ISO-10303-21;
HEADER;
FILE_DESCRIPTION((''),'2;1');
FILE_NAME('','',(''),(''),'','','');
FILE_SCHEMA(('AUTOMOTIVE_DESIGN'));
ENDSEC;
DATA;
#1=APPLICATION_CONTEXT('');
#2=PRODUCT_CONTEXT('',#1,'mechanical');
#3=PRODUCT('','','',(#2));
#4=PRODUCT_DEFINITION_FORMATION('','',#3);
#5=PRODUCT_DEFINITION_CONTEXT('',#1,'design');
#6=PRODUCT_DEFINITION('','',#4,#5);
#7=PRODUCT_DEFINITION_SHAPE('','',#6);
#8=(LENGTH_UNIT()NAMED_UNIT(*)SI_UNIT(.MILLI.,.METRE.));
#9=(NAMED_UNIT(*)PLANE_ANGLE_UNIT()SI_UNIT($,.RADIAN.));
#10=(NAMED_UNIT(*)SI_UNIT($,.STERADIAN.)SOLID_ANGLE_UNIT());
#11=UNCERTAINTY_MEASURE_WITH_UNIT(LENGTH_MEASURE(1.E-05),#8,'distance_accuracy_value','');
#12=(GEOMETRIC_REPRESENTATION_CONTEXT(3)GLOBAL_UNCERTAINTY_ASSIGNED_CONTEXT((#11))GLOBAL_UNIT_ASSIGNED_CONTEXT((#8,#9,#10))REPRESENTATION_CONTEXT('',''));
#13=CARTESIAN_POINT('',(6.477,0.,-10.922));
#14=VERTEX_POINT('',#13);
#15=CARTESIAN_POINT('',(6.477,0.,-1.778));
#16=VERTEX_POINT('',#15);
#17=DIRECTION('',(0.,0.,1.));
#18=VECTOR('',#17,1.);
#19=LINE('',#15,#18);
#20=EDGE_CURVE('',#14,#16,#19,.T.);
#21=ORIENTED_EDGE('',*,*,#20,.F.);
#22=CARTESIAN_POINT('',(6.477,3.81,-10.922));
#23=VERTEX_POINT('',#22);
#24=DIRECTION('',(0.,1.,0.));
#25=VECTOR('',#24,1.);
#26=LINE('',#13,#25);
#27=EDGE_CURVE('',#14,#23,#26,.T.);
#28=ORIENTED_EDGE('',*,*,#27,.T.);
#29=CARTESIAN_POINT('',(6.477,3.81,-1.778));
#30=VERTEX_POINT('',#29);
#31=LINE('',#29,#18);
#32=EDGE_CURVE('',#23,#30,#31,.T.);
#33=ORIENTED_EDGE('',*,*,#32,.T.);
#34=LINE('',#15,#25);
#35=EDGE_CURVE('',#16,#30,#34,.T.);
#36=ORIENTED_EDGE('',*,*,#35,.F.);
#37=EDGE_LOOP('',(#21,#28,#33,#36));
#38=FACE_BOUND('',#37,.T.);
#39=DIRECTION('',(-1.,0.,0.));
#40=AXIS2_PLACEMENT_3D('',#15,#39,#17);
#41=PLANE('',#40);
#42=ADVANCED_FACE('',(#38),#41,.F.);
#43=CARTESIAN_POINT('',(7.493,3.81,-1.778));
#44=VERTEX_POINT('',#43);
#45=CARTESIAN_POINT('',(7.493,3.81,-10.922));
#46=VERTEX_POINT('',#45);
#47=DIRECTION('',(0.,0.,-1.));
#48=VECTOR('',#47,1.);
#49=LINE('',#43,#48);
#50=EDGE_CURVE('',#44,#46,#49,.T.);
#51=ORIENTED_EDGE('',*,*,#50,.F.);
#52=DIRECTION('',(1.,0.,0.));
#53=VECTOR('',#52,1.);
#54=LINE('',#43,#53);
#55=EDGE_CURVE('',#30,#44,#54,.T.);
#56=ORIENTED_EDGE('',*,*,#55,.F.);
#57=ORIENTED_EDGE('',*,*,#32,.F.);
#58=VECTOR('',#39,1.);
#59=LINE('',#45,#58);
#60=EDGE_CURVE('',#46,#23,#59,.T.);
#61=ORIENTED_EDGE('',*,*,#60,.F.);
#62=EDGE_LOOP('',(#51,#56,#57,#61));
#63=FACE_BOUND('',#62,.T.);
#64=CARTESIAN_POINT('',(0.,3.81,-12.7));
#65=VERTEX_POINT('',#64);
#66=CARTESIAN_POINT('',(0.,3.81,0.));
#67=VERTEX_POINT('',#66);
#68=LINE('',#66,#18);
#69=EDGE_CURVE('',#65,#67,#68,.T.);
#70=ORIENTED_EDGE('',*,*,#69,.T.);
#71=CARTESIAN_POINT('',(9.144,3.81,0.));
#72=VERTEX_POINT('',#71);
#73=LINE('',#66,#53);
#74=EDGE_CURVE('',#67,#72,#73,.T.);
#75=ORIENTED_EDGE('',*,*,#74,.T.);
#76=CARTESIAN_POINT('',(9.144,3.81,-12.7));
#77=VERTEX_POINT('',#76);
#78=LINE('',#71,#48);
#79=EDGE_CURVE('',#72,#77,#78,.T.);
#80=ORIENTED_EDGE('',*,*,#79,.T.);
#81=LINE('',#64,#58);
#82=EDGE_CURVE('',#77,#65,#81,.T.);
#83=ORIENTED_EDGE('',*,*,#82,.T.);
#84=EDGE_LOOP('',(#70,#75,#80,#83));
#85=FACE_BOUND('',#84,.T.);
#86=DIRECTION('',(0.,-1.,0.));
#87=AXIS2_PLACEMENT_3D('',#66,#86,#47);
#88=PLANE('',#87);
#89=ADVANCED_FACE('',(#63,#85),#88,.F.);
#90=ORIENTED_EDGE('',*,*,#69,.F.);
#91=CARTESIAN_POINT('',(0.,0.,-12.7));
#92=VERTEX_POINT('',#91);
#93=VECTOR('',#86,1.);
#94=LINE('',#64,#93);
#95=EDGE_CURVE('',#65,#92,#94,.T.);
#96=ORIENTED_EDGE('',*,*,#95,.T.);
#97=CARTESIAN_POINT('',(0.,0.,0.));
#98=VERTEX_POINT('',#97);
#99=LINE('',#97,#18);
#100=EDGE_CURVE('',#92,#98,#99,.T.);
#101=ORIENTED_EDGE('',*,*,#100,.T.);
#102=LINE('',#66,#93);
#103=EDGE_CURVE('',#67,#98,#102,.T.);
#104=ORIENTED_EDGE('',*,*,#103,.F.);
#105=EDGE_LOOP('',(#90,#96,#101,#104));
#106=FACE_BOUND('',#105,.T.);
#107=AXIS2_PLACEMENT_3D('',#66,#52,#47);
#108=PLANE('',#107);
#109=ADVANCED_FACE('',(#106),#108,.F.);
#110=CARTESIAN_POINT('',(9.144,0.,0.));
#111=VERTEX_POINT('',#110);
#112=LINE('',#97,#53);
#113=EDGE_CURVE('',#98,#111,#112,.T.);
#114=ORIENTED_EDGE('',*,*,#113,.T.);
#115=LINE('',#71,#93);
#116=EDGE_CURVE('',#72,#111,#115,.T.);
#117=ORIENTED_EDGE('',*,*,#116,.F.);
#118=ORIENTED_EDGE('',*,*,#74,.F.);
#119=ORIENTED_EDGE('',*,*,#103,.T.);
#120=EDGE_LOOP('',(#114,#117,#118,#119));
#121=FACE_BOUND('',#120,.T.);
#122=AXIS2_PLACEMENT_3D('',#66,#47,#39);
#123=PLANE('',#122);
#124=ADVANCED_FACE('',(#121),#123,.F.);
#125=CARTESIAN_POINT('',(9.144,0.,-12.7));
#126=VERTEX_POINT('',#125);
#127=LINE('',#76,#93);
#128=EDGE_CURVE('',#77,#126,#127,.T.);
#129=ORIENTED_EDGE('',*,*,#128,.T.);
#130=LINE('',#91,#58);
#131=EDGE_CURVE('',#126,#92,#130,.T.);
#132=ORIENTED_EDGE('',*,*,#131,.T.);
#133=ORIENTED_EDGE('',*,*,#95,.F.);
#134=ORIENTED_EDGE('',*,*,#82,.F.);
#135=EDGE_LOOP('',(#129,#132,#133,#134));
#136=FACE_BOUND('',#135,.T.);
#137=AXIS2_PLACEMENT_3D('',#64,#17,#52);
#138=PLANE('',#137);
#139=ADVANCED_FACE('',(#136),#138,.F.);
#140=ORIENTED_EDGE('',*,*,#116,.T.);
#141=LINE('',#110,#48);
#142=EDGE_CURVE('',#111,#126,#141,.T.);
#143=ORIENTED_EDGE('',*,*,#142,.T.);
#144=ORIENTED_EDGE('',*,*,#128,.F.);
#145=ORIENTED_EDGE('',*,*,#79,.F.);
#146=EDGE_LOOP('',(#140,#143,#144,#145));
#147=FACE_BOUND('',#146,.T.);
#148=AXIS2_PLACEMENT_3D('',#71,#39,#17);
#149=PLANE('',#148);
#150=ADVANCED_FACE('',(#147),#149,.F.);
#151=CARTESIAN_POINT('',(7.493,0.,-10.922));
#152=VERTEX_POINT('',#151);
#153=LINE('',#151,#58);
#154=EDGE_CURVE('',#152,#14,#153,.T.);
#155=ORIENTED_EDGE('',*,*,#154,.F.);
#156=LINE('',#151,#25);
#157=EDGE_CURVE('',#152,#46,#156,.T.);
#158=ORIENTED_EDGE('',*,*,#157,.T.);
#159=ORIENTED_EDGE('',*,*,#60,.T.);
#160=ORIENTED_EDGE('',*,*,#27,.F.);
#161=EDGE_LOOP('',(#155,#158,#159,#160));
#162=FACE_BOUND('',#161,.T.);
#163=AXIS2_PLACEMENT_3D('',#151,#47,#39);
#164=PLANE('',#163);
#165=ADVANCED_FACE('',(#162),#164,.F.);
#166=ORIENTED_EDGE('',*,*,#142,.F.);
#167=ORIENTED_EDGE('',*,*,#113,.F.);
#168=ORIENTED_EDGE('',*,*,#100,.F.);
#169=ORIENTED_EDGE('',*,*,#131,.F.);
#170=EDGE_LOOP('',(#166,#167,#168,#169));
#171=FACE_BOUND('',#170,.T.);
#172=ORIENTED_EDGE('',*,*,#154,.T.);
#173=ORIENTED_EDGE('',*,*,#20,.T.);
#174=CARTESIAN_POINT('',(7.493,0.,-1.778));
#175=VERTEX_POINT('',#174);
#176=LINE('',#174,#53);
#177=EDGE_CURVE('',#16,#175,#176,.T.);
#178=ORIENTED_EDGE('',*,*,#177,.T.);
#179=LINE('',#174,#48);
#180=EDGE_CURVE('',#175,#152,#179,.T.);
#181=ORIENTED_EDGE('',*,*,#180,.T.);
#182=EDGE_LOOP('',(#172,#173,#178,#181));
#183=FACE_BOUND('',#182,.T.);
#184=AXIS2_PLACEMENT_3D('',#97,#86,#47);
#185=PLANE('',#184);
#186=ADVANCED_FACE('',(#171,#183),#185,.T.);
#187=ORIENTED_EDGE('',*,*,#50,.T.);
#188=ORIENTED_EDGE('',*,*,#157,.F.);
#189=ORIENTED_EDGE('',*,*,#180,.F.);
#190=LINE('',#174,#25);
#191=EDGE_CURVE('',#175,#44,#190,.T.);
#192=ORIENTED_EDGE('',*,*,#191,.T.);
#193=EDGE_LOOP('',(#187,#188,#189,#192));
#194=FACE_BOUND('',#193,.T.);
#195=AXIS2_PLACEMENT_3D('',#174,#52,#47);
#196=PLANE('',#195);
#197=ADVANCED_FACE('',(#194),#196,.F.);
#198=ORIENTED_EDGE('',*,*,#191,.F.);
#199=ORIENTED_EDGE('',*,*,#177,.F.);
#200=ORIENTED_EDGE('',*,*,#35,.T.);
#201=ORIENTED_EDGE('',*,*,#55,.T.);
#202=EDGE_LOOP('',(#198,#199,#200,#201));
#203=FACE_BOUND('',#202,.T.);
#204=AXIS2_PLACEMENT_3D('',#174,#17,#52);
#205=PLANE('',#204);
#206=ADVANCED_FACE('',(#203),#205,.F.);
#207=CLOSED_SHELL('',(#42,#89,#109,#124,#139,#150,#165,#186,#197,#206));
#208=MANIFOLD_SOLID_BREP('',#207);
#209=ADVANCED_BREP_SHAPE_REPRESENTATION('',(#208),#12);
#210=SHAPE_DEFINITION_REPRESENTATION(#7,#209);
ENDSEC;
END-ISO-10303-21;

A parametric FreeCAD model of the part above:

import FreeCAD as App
import Part
import Sketcher
from FreeCAD import Vector
Q = App.Units.Quantity

doc = App.newDocument("Part")
params = doc.addObject("Spreadsheet::Sheet", "Params")
for row, (alias, value) in enumerate([
    ("sketch1_height", "0.5 in"),
    ("sketch1_width", "0.36 in"),
    ("pad1_length", "0.15 in"),
    ("sketch2_width", "0.04 in"),
    ("sketch2_height", "0.36 in"),
], start=1):
    params.set(f"A{row}", alias)
    params.set(f"B{row}", "=" + value)
    params.setAlias(f"B{row}", alias)

body = doc.addObject("PartDesign::Body", "Body")

sketch1 = doc.addObject("Sketcher::SketchObject", "Sketch")
body.addObject(sketch1)
sketch1.AttachmentSupport = (doc.XZ_Plane, [""])
sketch1.MapMode = "FlatFace"
sketch1.addGeometry([
    Part.LineSegment(Vector(0, -13, 0), Vector(0, 0, 0)),
    Part.LineSegment(Vector(0, 0, 0), Vector(9, 0, 0)),
    Part.LineSegment(Vector(9, 0, 0), Vector(9, -13, 0)),
    Part.LineSegment(Vector(9, -13, 0), Vector(0, -13, 0)),
], False)
sketch1.addConstraint([
    Sketcher.Constraint("Coincident", 0, 2, 1, 1),
    Sketcher.Constraint("Coincident", 1, 2, 2, 1),
    Sketcher.Constraint("Coincident", 2, 2, 3, 1),
    Sketcher.Constraint("Coincident", 3, 2, 0, 1),
    Sketcher.Constraint("Vertical", 0),
    Sketcher.Constraint("Horizontal", 1),
    Sketcher.Constraint("Vertical", 2),
    Sketcher.Constraint("Horizontal", 3),
    Sketcher.Constraint("Coincident", 0, 2, -1, 1),
    Sketcher.Constraint("DistanceY", 0, 1, 0, 2, Q("0.5 in")),
    Sketcher.Constraint("DistanceX", 1, 1, 1, 2, Q("0.36 in")),
])
sketch1.setExpression("Constraints[9]", "Params.sketch1_height")
sketch1.setExpression("Constraints[10]", "Params.sketch1_width")
pad1 = doc.addObject("PartDesign::Pad", "Pad")
body.addObject(pad1)
pad1.Profile = sketch1
pad1.setExpression("Length", "Params.pad1_length")
pad1.Reversed = True

sketch2 = doc.addObject("Sketcher::SketchObject", "Sketch001")
body.addObject(sketch2)
sketch2.AttachmentSupport = (doc.XZ_Plane, [""])
sketch2.MapMode = "FlatFace"
sketch2.AttachmentOffset = App.Placement(Vector(0, 0, -0.15 * 25.4), App.Rotation())
sketch2.addGeometry([
    Part.LineSegment(Vector(6.5, -10.9, 0), Vector(6.5, -1.8, 0)),
    Part.LineSegment(Vector(6.5, -1.8, 0), Vector(7.5, -1.8, 0)),
    Part.LineSegment(Vector(7.5, -1.8, 0), Vector(7.5, -10.9, 0)),
    Part.LineSegment(Vector(7.5, -10.9, 0), Vector(6.5, -10.9, 0)),
], False)
sketch2.addConstraint([
    Sketcher.Constraint("Coincident", 0, 2, 1, 1),
    Sketcher.Constraint("Coincident", 1, 2, 2, 1),
    Sketcher.Constraint("Coincident", 2, 2, 3, 1),
    Sketcher.Constraint("Coincident", 3, 2, 0, 1),
    Sketcher.Constraint("Vertical", 0),
    Sketcher.Constraint("Horizontal", 1),
    Sketcher.Constraint("Vertical", 2),
    Sketcher.Constraint("Horizontal", 3),
    Sketcher.Constraint("DistanceX", 1, 1, 1, 2, Q("0.04 in")),
    Sketcher.Constraint("DistanceY", 0, 1, 0, 2, Q("0.36 in")),
    Sketcher.Constraint("DistanceY", 0, 2, -1, 1, Q("0.07 in")),
    Sketcher.Constraint("DistanceX", -1, 1, 0, 2, Q("0.255 in")),
])
sketch2.setExpression("Constraints[8]", "Params.sketch2_width")
sketch2.setExpression("Constraints[9]", "Params.sketch2_height")
pocket1 = doc.addObject("PartDesign::Pocket", "Pocket")
body.addObject(pocket1)
pocket1.Profile = sketch2
pocket1.Type = "ThroughAll"
pocket1.Reversed = True

doc.recompute()
